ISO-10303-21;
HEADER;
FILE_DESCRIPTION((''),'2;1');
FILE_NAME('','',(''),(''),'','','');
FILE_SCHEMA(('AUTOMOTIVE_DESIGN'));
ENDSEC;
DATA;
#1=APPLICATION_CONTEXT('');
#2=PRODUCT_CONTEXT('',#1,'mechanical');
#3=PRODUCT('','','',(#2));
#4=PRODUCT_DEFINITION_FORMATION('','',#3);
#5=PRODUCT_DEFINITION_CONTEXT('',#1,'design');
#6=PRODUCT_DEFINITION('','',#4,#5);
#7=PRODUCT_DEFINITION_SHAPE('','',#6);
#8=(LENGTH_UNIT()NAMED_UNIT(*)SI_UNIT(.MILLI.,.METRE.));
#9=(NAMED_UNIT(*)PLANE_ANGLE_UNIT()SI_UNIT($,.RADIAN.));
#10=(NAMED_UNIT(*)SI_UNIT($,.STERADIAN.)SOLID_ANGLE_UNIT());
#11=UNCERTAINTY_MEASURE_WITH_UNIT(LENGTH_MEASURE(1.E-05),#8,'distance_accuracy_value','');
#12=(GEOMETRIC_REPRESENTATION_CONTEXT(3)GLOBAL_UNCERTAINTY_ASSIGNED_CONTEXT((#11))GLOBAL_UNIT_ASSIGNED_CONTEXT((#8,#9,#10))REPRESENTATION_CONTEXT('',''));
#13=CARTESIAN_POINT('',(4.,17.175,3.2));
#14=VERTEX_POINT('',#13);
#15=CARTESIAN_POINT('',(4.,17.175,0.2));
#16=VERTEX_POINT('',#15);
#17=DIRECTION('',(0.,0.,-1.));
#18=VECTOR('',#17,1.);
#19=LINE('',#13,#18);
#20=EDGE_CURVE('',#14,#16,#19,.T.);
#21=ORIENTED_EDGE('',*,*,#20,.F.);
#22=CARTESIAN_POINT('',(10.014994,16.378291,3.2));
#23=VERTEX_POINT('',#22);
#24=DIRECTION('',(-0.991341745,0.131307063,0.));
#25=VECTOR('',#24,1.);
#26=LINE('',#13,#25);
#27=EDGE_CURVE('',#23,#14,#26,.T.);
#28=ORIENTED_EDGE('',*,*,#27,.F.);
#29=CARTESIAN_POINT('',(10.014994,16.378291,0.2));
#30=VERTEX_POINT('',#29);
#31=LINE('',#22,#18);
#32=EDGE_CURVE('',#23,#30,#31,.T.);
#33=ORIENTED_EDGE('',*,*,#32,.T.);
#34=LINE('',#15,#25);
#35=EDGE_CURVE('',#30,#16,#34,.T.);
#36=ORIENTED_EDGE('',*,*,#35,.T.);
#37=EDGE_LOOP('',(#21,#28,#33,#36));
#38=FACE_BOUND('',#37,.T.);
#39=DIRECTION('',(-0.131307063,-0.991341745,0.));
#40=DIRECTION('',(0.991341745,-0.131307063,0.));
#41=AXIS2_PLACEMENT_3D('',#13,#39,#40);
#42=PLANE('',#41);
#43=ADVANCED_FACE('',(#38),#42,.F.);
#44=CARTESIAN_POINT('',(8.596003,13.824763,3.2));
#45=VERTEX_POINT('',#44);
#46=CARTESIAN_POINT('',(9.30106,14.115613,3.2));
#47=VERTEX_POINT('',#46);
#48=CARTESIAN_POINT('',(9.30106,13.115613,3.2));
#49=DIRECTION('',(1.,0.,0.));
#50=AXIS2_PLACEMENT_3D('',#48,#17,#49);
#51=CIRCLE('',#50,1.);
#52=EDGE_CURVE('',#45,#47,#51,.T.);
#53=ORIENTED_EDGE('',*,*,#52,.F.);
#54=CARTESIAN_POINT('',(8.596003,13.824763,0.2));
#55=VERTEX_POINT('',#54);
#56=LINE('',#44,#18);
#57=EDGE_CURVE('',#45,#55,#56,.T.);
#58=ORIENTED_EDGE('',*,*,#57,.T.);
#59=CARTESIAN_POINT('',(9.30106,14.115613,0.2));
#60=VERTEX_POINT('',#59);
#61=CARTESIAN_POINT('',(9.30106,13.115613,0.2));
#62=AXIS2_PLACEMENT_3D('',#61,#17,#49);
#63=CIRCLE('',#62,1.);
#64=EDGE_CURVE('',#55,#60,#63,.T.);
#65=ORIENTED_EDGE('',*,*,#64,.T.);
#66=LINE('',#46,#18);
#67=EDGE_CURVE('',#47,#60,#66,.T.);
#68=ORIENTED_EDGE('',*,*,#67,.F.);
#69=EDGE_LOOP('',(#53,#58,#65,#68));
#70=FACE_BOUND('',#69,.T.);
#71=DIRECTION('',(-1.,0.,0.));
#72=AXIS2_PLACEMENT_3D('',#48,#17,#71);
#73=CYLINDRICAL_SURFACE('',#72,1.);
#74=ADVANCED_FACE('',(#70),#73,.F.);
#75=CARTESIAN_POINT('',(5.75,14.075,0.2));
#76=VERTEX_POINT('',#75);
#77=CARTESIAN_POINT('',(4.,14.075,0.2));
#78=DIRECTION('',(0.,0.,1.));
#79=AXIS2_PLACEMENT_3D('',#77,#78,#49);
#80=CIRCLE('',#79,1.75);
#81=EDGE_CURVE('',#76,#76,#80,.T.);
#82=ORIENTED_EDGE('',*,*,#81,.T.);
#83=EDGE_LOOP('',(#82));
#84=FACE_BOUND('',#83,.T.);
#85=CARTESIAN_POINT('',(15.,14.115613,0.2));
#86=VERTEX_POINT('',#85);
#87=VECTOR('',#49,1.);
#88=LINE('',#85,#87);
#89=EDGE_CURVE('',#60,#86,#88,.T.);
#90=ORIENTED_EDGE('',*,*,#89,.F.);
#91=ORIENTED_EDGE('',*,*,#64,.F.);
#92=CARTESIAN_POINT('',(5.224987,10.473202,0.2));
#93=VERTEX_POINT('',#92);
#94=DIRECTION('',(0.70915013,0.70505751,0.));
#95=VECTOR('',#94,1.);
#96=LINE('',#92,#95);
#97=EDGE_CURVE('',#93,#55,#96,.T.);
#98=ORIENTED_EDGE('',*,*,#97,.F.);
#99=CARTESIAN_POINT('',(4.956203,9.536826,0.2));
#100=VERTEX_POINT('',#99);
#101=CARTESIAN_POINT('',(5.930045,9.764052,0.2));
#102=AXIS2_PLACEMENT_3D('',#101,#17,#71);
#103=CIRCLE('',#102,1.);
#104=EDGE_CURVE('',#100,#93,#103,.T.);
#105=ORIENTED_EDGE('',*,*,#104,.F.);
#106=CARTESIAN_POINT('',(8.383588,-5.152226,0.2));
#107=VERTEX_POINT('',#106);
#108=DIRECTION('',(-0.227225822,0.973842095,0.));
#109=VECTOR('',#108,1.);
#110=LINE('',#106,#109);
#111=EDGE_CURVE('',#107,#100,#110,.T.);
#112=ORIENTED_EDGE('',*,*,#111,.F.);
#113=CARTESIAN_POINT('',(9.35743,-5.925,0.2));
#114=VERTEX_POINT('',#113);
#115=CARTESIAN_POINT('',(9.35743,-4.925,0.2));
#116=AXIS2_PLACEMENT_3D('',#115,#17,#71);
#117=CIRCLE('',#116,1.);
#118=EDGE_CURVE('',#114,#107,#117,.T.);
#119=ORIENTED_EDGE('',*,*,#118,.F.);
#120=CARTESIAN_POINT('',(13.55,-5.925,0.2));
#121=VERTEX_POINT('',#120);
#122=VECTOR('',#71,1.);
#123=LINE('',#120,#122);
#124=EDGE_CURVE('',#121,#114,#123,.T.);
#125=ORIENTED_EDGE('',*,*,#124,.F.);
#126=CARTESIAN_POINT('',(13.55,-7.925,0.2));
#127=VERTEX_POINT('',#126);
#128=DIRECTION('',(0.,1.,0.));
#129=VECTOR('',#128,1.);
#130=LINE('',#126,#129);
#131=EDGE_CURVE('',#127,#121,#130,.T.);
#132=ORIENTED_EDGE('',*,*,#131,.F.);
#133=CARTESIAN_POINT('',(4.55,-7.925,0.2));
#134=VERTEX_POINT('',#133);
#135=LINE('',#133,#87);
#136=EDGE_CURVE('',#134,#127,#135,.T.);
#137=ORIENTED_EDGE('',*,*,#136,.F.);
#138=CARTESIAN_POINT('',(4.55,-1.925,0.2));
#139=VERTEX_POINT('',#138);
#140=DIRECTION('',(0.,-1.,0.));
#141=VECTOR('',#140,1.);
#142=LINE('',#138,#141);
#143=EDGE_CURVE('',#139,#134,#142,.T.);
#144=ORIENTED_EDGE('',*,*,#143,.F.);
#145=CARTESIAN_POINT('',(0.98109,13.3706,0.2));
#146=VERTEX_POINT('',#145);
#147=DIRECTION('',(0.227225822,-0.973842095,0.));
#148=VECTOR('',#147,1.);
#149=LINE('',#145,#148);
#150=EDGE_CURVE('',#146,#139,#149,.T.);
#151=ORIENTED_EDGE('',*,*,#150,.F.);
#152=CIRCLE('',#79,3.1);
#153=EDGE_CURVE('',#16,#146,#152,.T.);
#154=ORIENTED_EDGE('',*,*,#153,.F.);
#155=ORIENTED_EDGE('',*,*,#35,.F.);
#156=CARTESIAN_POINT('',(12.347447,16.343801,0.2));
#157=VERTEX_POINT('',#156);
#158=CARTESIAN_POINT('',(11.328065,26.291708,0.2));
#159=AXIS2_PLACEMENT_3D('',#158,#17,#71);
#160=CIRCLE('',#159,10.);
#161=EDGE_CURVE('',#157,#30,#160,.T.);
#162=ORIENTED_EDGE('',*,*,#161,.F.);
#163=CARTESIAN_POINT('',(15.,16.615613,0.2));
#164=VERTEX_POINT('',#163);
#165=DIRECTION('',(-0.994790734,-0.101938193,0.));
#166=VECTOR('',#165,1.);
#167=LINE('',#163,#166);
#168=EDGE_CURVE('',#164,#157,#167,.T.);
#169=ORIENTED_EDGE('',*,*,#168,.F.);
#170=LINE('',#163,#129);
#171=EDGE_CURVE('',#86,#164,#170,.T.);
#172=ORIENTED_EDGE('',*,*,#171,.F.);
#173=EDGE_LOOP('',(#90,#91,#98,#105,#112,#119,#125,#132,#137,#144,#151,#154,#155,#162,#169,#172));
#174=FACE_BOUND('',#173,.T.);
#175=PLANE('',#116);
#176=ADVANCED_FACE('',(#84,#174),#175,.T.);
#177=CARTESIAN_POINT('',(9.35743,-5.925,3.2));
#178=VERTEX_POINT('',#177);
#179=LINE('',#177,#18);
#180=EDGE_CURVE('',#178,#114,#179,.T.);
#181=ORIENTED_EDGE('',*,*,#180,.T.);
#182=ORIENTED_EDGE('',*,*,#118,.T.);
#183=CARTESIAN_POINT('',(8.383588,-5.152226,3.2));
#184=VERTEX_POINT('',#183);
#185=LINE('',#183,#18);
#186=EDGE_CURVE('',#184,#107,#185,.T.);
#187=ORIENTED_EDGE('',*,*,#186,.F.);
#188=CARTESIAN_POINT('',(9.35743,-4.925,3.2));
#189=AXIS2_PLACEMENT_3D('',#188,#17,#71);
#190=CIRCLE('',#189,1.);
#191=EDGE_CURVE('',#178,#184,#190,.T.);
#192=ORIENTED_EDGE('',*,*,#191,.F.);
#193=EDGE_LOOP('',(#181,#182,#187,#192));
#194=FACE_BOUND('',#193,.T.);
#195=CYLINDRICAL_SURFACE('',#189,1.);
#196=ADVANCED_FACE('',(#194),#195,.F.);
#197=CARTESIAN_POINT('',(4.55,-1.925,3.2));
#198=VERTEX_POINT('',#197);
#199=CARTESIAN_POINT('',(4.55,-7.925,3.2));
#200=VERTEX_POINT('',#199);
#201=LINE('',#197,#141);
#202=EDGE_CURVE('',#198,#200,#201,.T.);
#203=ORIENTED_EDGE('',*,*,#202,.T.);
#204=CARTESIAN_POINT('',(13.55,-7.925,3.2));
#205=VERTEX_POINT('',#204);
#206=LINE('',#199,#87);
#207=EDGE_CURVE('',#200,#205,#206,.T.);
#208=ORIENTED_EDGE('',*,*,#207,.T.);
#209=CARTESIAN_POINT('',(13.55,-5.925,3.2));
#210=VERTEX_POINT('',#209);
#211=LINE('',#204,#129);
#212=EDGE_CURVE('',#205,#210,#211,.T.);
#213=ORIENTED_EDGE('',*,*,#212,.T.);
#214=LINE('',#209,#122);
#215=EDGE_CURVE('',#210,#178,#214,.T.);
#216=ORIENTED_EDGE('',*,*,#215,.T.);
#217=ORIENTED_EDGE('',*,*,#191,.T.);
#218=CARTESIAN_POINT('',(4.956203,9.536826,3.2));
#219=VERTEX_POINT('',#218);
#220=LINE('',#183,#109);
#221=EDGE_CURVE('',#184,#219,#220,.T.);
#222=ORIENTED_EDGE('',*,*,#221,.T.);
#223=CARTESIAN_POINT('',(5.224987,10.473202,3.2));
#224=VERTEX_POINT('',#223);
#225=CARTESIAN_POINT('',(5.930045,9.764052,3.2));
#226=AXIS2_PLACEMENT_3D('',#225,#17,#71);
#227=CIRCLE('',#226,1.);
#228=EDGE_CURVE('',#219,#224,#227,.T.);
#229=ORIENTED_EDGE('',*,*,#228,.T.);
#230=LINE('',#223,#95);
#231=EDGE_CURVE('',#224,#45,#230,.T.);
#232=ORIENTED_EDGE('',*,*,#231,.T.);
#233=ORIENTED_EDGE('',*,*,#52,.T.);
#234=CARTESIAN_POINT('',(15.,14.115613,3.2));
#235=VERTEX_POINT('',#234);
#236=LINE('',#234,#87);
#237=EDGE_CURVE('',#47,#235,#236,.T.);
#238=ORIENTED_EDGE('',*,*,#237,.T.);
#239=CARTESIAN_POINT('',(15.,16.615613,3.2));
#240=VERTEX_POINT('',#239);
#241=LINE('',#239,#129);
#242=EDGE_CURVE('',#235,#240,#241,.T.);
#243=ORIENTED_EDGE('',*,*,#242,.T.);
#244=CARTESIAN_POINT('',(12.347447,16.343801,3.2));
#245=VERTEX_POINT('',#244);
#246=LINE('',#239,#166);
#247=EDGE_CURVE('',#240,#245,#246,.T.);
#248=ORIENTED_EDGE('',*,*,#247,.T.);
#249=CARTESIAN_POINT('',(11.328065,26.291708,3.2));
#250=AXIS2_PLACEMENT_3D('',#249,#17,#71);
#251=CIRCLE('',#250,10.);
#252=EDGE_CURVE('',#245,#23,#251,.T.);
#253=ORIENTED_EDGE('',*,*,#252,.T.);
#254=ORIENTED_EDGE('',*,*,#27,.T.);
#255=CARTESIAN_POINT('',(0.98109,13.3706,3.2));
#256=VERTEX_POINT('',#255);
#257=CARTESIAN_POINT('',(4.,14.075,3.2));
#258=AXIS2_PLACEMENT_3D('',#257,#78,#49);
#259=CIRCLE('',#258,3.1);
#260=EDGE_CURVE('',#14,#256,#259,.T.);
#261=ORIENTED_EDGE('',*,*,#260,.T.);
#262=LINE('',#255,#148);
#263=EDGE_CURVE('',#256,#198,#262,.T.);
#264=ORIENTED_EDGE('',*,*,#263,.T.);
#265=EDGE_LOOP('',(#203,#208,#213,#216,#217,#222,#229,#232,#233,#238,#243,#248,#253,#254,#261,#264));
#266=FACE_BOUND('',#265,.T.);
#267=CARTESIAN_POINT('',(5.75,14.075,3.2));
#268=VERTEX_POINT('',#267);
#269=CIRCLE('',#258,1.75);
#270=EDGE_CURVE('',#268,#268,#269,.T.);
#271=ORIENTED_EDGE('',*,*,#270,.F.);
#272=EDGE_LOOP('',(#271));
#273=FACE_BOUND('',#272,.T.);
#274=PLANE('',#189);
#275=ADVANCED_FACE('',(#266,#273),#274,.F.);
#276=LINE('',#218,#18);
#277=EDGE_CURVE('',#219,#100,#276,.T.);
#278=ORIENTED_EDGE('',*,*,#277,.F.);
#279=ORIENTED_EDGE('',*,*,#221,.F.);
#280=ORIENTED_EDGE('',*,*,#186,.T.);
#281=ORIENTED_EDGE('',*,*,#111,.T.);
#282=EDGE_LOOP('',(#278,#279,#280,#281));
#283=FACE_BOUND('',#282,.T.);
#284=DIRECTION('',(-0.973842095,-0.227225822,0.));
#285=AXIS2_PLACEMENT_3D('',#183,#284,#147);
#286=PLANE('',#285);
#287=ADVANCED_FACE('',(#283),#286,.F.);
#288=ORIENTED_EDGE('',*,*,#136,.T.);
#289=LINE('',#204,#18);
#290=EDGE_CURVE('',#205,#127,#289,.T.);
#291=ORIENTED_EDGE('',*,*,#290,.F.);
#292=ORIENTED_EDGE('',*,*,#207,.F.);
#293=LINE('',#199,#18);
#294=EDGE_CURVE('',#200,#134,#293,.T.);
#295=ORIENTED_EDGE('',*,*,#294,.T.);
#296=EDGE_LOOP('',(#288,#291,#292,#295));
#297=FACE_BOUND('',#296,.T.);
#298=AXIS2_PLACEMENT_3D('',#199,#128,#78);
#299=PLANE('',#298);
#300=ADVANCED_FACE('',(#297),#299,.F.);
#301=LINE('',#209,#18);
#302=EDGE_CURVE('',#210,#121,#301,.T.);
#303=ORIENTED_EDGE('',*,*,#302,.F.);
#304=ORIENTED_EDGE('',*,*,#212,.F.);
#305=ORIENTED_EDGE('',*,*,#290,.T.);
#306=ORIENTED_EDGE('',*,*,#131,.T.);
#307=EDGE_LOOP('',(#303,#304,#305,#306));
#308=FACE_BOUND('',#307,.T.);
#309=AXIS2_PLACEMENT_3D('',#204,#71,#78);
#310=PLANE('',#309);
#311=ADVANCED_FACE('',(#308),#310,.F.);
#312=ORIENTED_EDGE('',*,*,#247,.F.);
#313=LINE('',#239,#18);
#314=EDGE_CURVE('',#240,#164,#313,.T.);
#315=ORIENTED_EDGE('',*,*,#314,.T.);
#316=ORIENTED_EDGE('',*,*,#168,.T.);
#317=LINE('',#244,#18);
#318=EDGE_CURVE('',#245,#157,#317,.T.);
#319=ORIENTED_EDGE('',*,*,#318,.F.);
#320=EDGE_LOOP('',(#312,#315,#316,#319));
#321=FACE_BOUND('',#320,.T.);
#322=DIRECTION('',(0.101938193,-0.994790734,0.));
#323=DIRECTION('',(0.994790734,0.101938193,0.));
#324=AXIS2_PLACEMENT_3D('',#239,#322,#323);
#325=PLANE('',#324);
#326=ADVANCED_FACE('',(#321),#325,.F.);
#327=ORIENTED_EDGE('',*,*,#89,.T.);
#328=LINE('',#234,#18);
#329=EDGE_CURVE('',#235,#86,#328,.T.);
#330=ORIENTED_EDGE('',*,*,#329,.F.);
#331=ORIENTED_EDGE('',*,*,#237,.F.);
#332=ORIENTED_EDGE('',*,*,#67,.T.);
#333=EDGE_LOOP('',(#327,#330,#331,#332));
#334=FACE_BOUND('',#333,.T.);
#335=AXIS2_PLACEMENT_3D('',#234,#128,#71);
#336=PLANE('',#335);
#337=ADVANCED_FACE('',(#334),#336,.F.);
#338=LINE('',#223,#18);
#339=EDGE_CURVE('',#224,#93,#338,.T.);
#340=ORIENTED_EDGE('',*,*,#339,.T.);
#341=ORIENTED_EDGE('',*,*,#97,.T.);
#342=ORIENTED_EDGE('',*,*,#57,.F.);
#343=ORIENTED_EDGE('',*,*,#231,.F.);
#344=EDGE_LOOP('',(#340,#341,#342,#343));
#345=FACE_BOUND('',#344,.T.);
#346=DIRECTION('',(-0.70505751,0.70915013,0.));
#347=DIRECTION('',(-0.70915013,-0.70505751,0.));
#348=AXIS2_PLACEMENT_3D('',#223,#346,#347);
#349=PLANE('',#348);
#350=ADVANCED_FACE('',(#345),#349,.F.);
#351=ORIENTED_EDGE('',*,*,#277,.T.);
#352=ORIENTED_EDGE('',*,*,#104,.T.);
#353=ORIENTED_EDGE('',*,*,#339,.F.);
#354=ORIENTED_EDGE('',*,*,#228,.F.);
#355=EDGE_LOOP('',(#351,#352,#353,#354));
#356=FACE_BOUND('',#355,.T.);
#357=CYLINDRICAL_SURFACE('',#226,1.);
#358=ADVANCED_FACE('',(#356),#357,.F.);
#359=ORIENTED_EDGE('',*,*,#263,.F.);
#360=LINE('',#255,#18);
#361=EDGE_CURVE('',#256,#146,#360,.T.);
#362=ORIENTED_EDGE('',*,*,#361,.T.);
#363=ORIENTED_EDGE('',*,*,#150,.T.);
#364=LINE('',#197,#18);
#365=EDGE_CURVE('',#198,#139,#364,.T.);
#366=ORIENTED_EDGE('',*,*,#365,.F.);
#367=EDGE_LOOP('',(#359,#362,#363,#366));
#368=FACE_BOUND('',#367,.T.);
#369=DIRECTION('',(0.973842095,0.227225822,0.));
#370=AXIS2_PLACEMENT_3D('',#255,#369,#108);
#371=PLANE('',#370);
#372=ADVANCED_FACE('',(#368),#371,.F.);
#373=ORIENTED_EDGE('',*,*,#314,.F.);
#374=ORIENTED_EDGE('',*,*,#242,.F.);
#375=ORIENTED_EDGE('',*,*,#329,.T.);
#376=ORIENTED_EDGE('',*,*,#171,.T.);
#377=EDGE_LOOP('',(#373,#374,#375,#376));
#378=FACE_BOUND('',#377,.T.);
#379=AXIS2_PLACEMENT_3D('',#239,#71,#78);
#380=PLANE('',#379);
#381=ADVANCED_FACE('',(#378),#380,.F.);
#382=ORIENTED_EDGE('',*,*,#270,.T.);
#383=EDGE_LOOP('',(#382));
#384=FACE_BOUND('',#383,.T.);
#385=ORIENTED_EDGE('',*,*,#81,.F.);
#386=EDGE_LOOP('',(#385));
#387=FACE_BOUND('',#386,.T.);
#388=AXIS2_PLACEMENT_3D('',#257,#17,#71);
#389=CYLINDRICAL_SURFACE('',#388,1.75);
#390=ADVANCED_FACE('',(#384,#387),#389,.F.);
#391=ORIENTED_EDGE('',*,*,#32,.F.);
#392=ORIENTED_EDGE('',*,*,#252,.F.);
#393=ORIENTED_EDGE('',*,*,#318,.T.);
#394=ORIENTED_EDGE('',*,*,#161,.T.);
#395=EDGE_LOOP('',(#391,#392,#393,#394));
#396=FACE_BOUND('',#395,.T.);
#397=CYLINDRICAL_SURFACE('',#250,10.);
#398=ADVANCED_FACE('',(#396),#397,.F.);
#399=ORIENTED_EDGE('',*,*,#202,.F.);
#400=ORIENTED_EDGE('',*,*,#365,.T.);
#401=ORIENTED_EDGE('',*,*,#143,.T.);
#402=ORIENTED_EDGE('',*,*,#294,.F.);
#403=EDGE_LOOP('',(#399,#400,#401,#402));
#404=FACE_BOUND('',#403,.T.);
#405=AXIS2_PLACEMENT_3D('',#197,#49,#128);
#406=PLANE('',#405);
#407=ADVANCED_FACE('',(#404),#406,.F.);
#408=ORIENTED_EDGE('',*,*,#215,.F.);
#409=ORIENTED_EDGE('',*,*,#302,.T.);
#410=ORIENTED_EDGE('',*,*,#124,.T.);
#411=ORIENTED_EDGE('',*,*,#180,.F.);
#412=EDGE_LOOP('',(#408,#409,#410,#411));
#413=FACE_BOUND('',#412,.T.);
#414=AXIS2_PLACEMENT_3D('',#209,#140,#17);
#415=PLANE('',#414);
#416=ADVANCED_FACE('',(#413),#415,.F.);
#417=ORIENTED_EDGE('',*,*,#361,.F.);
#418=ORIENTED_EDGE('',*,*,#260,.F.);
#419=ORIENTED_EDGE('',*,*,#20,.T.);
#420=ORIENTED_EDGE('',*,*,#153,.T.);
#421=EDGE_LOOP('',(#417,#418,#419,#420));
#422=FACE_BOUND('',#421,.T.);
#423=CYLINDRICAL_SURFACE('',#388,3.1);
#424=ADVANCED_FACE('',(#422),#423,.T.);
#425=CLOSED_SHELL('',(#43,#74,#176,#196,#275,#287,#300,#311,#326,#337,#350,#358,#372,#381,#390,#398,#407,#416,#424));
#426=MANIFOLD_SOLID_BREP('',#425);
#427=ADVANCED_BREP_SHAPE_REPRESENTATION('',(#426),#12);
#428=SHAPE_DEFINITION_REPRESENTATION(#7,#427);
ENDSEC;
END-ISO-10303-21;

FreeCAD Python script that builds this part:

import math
import FreeCAD as App
import Part
import Sketcher
from FreeCAD import Vector

doc = App.newDocument("Part")
params = doc.addObject("Spreadsheet::Sheet", "Params")
for row, (alias, value) in enumerate([
    ("sketch1_radius", "1 mm"),
    ("sketch1_radius2", "10 mm"),
    ("sketch1_diameter", "3.5 mm"),
    ("sketch1_radius3", "3.1 mm"),
    ("sketch1_width", "9 mm"),
    ("pad1_length", "3 mm"),
], start=1):
    params.set(f"A{row}", alias)
    params.set(f"B{row}", "=" + value)
    params.setAlias(f"B{row}", alias)

body = doc.addObject("PartDesign::Body", "Body")

# Sketch on XY plane
sketch1 = body.newObject("Sketcher::SketchObject", "Sketch")
sketch1.AttachmentSupport = (doc.getObject("XY_Plane"), [""])
sketch1.MapMode = "FlatFace"
sketch1.AttachmentOffset = App.Placement(Vector(0, 0, 0.2), App.Rotation())
sketch1.addGeometry([
    Part.LineSegment(Vector(1, 13.4, 0), Vector(4.5, -1.9, 0)),  # 0
    Part.LineSegment(Vector(4.5, -1.9, 0), Vector(4.5, -7.9, 0)),  # 1
    Part.LineSegment(Vector(4.5, -7.9, 0), Vector(13.6, -7.9, 0)),  # 2
    Part.LineSegment(Vector(13.6, -7.9, 0), Vector(13.6, -5.9, 0)),  # 3
    Part.LineSegment(Vector(13.6, -5.9, 0), Vector(9.4, -5.9, 0)),  # 4
    Part.ArcOfCircle(Part.Circle(Vector(9.4, -4.9, 0), Vector(0, 0, 1), 1), math.radians(-167), math.radians(-90)),  # 5
    Part.LineSegment(Vector(8.4, -5.2, 0), Vector(5, 9.5, 0)),  # 6
    Part.ArcOfCircle(Part.Circle(Vector(5.9, 9.8, 0), Vector(0, 0, 1), 1), math.radians(135), math.radians(193)),  # 7
    Part.LineSegment(Vector(5.2, 10.5, 0), Vector(8.6, 13.8, 0)),  # 8
    Part.ArcOfCircle(Part.Circle(Vector(9.3, 13.1, 0), Vector(0, 0, 1), 1), math.radians(90), math.radians(135)),  # 9
    Part.LineSegment(Vector(9.3, 14.1, 0), Vector(15, 14.1, 0)),  # 10
    Part.LineSegment(Vector(15, 14.1, 0), Vector(15, 16.6, 0)),  # 11
    Part.LineSegment(Vector(15, 16.6, 0), Vector(12.3, 16.3, 0)),  # 12
    Part.ArcOfCircle(Part.Circle(Vector(11.3, 26.3, 0), Vector(0, 0, 1), 10), math.radians(-97.55), math.radians(-84.15)),  # 13
    Part.LineSegment(Vector(10, 16.4, 0), Vector(4, 17.2, 0)),  # 14
    Part.ArcOfCircle(Part.Circle(Vector(4, 14.1, 0), Vector(0, 0, 1), 3.1), math.radians(90), math.radians(193)),  # 15
    Part.Circle(Vector(4, 14.1, 0), Vector(0, 0, 1), 1.8),  # 16
], False)
sketch1.addConstraint([
    Sketcher.Constraint("Coincident", 0, 2, 1, 1),
    Sketcher.Constraint("Coincident", 1, 2, 2, 1),
    Sketcher.Constraint("Coincident", 2, 2, 3, 1),
    Sketcher.Constraint("Coincident", 3, 2, 4, 1),
    Sketcher.Constraint("Tangent", 4, 2, 5, 2),
    Sketcher.Constraint("Tangent", 5, 1, 6, 1),
    Sketcher.Constraint("Tangent", 6, 2, 7, 2),
    Sketcher.Constraint("Tangent", 7, 1, 8, 1),
    Sketcher.Constraint("Tangent", 8, 2, 9, 2),
    Sketcher.Constraint("Tangent", 9, 1, 10, 1),
    Sketcher.Constraint("Coincident", 10, 2, 11, 1),
    Sketcher.Constraint("Coincident", 11, 2, 12, 1),
    Sketcher.Constraint("Tangent", 12, 2, 13, 2),
    Sketcher.Constraint("Tangent", 13, 1, 14, 1),
    Sketcher.Constraint("Coincident", 14, 2, 15, 1),
    Sketcher.Constraint("Tangent", 15, 2, 0, 1),
    Sketcher.Constraint("Vertical", 1),
    Sketcher.Constraint("Horizontal", 2),
    Sketcher.Constraint("Vertical", 3),
    Sketcher.Constraint("Horizontal", 4),
    Sketcher.Constraint("Horizontal", 10),
    Sketcher.Constraint("Vertical", 11),
    Sketcher.Constraint("Coincident", 16, 3, 15, 3),
    Sketcher.Constraint("Equal", 5, 7),
    Sketcher.Constraint("Equal", 7, 9),
    Sketcher.Constraint("Parallel", 0, 6),
    Sketcher.Constraint("Vertical", 16, 3, 14, 2),
    Sketcher.Constraint("Radius", 5, 1.0),
    Sketcher.Constraint("Radius", 13, 10.0),
    Sketcher.Constraint("Diameter", 16, 3.5),
    Sketcher.Constraint("Radius", 15, 3.1),
    Sketcher.Constraint("DistanceX", 2, 1, 2, 2, 9.0),
    Sketcher.Constraint("DistanceY", 1, 2, 1, 1, 6.0),
    Sketcher.Constraint("DistanceY", 3, 1, 3, 2, 2.0),
    Sketcher.Constraint("DistanceY", 11, 1, 11, 2, 2.5),
    Sketcher.Constraint("DistanceX", -1, 1, 15, 3, 4.0),
    Sketcher.Constraint("DistanceX", -1, 1, 10, 2, 15.0),
    Sketcher.Constraint("DistanceY", 5, 3, 15, 3, 19.0),
    Sketcher.Constraint("DistanceX", -1, 1, 0, 2, 4.55),
    Sketcher.Constraint("DistanceY", 5, 3, -1, 1, 4.925),
    Sketcher.Constraint("Distance", 8, 4.7536),
    Sketcher.Constraint("DistanceX", 4, 2, 4, 1, 4.19257),
    Sketcher.Constraint("DistanceX", 10, 1, 10, 2, 5.69894),
    Sketcher.Constraint("DistanceY", -1, 1, 12, 2, 16.343801),
    Sketcher.Constraint("Distance", 14, 6.067529),
    Sketcher.Constraint("DistanceY", -1, 1, 13, 3, 26.291708),
])
sketch1.setExpression("Constraints[27]", "Params.sketch1_radius")
sketch1.setExpression("Constraints[28]", "Params.sketch1_radius2")
sketch1.setExpression("Constraints[29]", "Params.sketch1_diameter")
sketch1.setExpression("Constraints[30]", "Params.sketch1_radius3")
sketch1.setExpression("Constraints[31]", "Params.sketch1_width")
pad1 = body.newObject("PartDesign::Pad", "Pad")
pad1.Profile = sketch1
pad1.setExpression("Length", "Params.pad1_length")

doc.recompute()
